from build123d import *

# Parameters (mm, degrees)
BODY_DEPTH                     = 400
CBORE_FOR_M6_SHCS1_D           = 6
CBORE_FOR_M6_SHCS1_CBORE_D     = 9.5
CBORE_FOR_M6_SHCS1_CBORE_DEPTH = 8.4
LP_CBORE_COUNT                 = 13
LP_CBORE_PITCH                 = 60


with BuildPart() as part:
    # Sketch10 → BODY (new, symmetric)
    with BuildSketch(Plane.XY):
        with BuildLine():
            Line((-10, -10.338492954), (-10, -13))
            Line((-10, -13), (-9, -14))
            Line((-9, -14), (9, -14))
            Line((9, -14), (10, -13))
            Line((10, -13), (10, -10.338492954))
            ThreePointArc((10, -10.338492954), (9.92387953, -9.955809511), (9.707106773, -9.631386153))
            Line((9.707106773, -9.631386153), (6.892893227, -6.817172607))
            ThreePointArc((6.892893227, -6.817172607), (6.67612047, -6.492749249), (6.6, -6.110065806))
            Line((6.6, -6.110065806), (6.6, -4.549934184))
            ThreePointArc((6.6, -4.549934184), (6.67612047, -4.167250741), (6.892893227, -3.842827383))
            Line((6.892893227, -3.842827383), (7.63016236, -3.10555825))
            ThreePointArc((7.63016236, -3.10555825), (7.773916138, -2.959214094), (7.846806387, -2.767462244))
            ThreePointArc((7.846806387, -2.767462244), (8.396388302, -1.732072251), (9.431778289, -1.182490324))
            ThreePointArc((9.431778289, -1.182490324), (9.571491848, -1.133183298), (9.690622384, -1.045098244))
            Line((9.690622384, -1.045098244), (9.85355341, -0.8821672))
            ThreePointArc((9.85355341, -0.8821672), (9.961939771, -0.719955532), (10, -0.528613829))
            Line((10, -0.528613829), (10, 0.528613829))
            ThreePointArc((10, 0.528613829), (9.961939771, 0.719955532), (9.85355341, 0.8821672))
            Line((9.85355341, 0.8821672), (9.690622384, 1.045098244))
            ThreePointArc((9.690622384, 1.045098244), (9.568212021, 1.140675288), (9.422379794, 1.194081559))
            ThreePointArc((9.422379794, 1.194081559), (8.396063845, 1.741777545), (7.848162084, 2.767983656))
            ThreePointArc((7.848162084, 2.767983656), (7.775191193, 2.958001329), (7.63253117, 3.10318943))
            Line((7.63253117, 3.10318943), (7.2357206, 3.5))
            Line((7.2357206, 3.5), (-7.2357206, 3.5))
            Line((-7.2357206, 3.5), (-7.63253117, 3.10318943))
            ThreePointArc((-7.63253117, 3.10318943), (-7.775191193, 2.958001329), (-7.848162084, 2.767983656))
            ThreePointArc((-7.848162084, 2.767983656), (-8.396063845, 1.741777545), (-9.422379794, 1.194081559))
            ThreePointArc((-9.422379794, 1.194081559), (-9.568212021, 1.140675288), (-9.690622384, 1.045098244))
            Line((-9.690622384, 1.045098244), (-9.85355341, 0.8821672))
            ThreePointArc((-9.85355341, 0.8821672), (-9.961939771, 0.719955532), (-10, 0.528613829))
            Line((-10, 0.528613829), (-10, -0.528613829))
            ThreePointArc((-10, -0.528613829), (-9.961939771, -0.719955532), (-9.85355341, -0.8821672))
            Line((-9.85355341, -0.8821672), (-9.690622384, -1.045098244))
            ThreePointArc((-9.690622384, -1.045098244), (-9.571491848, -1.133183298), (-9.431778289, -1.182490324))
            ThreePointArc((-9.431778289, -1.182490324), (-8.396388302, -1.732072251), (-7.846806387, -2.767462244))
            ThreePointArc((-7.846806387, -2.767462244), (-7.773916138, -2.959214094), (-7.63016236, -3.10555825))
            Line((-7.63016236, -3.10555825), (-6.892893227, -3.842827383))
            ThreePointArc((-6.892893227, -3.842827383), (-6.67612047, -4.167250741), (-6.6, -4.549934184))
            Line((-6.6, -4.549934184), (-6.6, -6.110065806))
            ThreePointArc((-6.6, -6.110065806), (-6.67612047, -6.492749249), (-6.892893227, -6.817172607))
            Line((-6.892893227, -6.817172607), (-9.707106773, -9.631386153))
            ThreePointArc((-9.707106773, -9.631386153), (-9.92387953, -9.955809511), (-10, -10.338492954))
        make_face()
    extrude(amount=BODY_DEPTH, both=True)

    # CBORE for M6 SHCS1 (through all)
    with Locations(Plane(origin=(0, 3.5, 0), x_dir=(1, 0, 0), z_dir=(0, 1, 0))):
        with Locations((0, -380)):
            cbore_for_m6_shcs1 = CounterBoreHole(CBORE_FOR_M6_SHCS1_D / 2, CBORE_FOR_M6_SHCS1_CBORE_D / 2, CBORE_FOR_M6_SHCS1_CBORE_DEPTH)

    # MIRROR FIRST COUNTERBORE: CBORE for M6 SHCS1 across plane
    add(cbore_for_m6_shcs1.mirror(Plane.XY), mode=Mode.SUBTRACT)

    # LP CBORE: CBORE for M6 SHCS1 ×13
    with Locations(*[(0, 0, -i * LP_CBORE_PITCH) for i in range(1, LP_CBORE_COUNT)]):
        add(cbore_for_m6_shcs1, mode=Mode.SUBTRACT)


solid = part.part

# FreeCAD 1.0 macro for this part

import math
import FreeCAD as App
import Part
import Sketcher
Q = App.Units.Quantity

doc = App.newDocument("Part")
body = doc.addObject("PartDesign::Body", "Body")

# Sketch on XY plane
sketch1 = body.newObject("Sketcher::SketchObject", "Sketch")
sketch1.AttachmentSupport = (doc.getObject("XY_Plane"), [""])
sketch1.MapMode = "FlatFace"
sketch1.addGeometry([
    Part.LineSegment(App.Vector(-10, -10.338493, 0), App.Vector(-10, -13, 0)),  # 0
    Part.LineSegment(App.Vector(-10, -13, 0), App.Vector(-9, -14, 0)),  # 1
    Part.LineSegment(App.Vector(-9, -14, 0), App.Vector(9, -14, 0)),  # 2
    Part.LineSegment(App.Vector(9, -14, 0), App.Vector(10, -13, 0)),  # 3
    Part.LineSegment(App.Vector(10, -13, 0), App.Vector(10, -10.338493, 0)),  # 4
    Part.ArcOfCircle(Part.Circle(App.Vector(9, -10.338493, 0), App.Vector(0, 0, 1), 1), math.radians(0), math.radians(45)),  # 5
    Part.LineSegment(App.Vector(9.707107, -9.631386, 0), App.Vector(6.892893, -6.817173, 0)),  # 6
    Part.ArcOfCircle(Part.Circle(App.Vector(7.6, -6.110066, 0), App.Vector(0, 0, 1), 1), math.radians(-180), math.radians(-135)),  # 7
    Part.LineSegment(App.Vector(6.6, -6.110066, 0), App.Vector(6.6, -4.549934, 0)),  # 8
    Part.ArcOfCircle(Part.Circle(App.Vector(7.6, -4.549934, 0), App.Vector(0, 0, 1), 1), math.radians(135), math.radians(180)),  # 9
    Part.LineSegment(App.Vector(6.892893, -3.842827, 0), App.Vector(7.630162, -3.105558, 0)),  # 10
    Part.ArcOfCircle(Part.Circle(App.Vector(7.352929, -2.689455, 0), App.Vector(0, 0, 1), 0.5), math.radians(-56.326002), math.radians(-8.975599)),  # 11
    Part.ArcOfCircle(Part.Circle(App.Vector(9.810602, -3.146286, 0), App.Vector(0, 0, 1), 2), math.radians(100.918459), math.radians(169.081542)),  # 12
    Part.ArcOfCircle(Part.Circle(App.Vector(9.337072, -0.691541, 0), App.Vector(0, 0, 1), 0.5), math.radians(-79.081541), math.radians(-45.000551)),  # 13
    Part.LineSegment(App.Vector(9.690622, -1.045098, 0), App.Vector(9.853553, -0.882167, 0)),  # 14
    Part.ArcOfCircle(Part.Circle(App.Vector(9.5, -0.528614, 0), App.Vector(0, 0, 1), 0.5), math.radians(-44.999997), math.radians(0)),  # 15
    Part.LineSegment(App.Vector(10, -0.528614, 0), App.Vector(10, 0.528614, 0)),  # 16
    Part.ArcOfCircle(Part.Circle(App.Vector(9.5, 0.528614, 0), App.Vector(0, 0, 1), 0.5), math.radians(0), math.radians(44.999997)),  # 17
    Part.LineSegment(App.Vector(9.853553, 0.882167, 0), App.Vector(9.690622, 1.045098, 0)),  # 18
    Part.ArcOfCircle(Part.Circle(App.Vector(9.325441, 0.703569, 0), App.Vector(0, 0, 1), 0.5), math.radians(43.083145), math.radians(78.820818)),  # 19
    Part.ArcOfCircle(Part.Circle(App.Vector(9.810136, 3.156133, 0), App.Vector(0, 0, 1), 2), math.radians(-168.80933), math.radians(-101.179181)),  # 20
    Part.ArcOfCircle(Part.Circle(App.Vector(7.354683, 2.687497, 0), App.Vector(0, 0, 1), 0.5), math.radians(9.263401), math.radians(56.24127)),  # 21
    Part.LineSegment(App.Vector(7.632531, 3.103189, 0), App.Vector(7.235721, 3.5, 0)),  # 22
    Part.LineSegment(App.Vector(7.235721, 3.5, 0), App.Vector(-7.235721, 3.5, 0)),  # 23
    Part.LineSegment(App.Vector(-7.235721, 3.5, 0), App.Vector(-7.632531, 3.103189, 0)),  # 24
    Part.ArcOfCircle(Part.Circle(App.Vector(-7.354683, 2.687497, 0), App.Vector(0, 0, 1), 0.5), math.radians(123.75873), math.radians(170.736599)),  # 25
    Part.ArcOfCircle(Part.Circle(App.Vector(-9.810136, 3.156133, 0), App.Vector(0, 0, 1), 2), math.radians(-78.820819), math.radians(-11.19067)),  # 26
    Part.ArcOfCircle(Part.Circle(App.Vector(-9.325441, 0.703569, 0), App.Vector(0, 0, 1), 0.5), math.radians(101.179182), math.radians(136.916855)),  # 27
    Part.LineSegment(App.Vector(-9.690622, 1.045098, 0), App.Vector(-9.853553, 0.882167, 0)),  # 28
    Part.ArcOfCircle(Part.Circle(App.Vector(-9.5, 0.528614, 0), App.Vector(0, 0, 1), 0.5), math.radians(135.000003), math.radians(180)),  # 29
    Part.LineSegment(App.Vector(-10, 0.528614, 0), App.Vector(-10, -0.528614, 0)),  # 30
    Part.ArcOfCircle(Part.Circle(App.Vector(-9.5, -0.528614, 0), App.Vector(0, 0, 1), 0.5), math.radians(-180), math.radians(-135.000003)),  # 31
    Part.LineSegment(App.Vector(-9.853553, -0.882167, 0), App.Vector(-9.690622, -1.045098, 0)),  # 32
    Part.ArcOfCircle(Part.Circle(App.Vector(-9.337072, -0.691541, 0), App.Vector(0, 0, 1), 0.5), math.radians(-134.999449), math.radians(-100.918459)),  # 33
    Part.ArcOfCircle(Part.Circle(App.Vector(-9.810602, -3.146286, 0), App.Vector(0, 0, 1), 2), math.radians(10.918458), math.radians(79.081541)),  # 34
    Part.ArcOfCircle(Part.Circle(App.Vector(-7.352929, -2.689455, 0), App.Vector(0, 0, 1), 0.5), math.radians(-171.024401), math.radians(-123.673998)),  # 35
    Part.LineSegment(App.Vector(-7.630162, -3.105558, 0), App.Vector(-6.892893, -3.842827, 0)),  # 36
    Part.ArcOfCircle(Part.Circle(App.Vector(-7.6, -4.549934, 0), App.Vector(0, 0, 1), 1), math.radians(0), math.radians(45)),  # 37
    Part.LineSegment(App.Vector(-6.6, -4.549934, 0), App.Vector(-6.6, -6.110066, 0)),  # 38
    Part.ArcOfCircle(Part.Circle(App.Vector(-7.6, -6.110066, 0), App.Vector(0, 0, 1), 1), math.radians(-45), math.radians(0)),  # 39
    Part.LineSegment(App.Vector(-6.892893, -6.817173, 0), App.Vector(-9.707107, -9.631386, 0)),  # 40
    Part.ArcOfCircle(Part.Circle(App.Vector(-9, -10.338493, 0), App.Vector(0, 0, 1), 1), math.radians(135), math.radians(180)),  # 41
], False)
sketch1.addConstraint([
    Sketcher.Constraint("Coincident", 0, 2, 1, 1),
    Sketcher.Constraint("Coincident", 1, 2, 2, 1),
    Sketcher.Constraint("Coincident", 2, 2, 3, 1),
    Sketcher.Constraint("Coincident", 3, 2, 4, 1),
    Sketcher.Constraint("Tangent", 4, 2, 5, 1),
    Sketcher.Constraint("Tangent", 5, 2, 6, 1),
    Sketcher.Constraint("Tangent", 6, 2, 7, 2),
    Sketcher.Constraint("Tangent", 7, 1, 8, 1),
    Sketcher.Constraint("Tangent", 8, 2, 9, 2),
    Sketcher.Constraint("Tangent", 9, 1, 10, 1),
    Sketcher.Constraint("Coincident", 10, 2, 11, 1),
    Sketcher.Constraint("Coincident", 11, 2, 12, 2),
    Sketcher.Constraint("Tangent", 12, 1, 13, 1),
    Sketcher.Constraint("Coincident", 13, 2, 14, 1),
    Sketcher.Constraint("Tangent", 14, 2, 15, 1),
    Sketcher.Constraint("Tangent", 15, 2, 16, 1),
    Sketcher.Constraint("Tangent", 16, 2, 17, 1),
    Sketcher.Constraint("Tangent", 17, 2, 18, 1),
    Sketcher.Constraint("Coincident", 18, 2, 19, 1),
    Sketcher.Constraint("Tangent", 19, 2, 20, 2),
    Sketcher.Constraint("Coincident", 20, 1, 21, 1),
    Sketcher.Constraint("Coincident", 21, 2, 22, 1),
    Sketcher.Constraint("Coincident", 22, 2, 23, 1),
    Sketcher.Constraint("Coincident", 23, 2, 24, 1),
    Sketcher.Constraint("Coincident", 24, 2, 25, 1),
    Sketcher.Constraint("Coincident", 25, 2, 26, 2),
    Sketcher.Constraint("Tangent", 26, 1, 27, 1),
    Sketcher.Constraint("Coincident", 27, 2, 28, 1),
    Sketcher.Constraint("Tangent", 28, 2, 29, 1),
    Sketcher.Constraint("Tangent", 29, 2, 30, 1),
    Sketcher.Constraint("Tangent", 30, 2, 31, 1),
    Sketcher.Constraint("Tangent", 31, 2, 32, 1),
    Sketcher.Constraint("Coincident", 32, 2, 33, 1),
    Sketcher.Constraint("Tangent", 33, 2, 34, 2),
    Sketcher.Constraint("Coincident", 34, 1, 35, 1),
    Sketcher.Constraint("Coincident", 35, 2, 36, 1),
    Sketcher.Constraint("Tangent", 36, 2, 37, 2),
    Sketcher.Constraint("Tangent", 37, 1, 38, 1),
    Sketcher.Constraint("Tangent", 38, 2, 39, 2),
    Sketcher.Constraint("Tangent", 39, 1, 40, 1),
    Sketcher.Constraint("Tangent", 40, 2, 41, 1),
    Sketcher.Constraint("Tangent", 41, 2, 0, 1),
    Sketcher.Constraint("Vertical", 0),
    Sketcher.Constraint("Horizontal", 2),
    Sketcher.Constraint("Vertical", 4),
    Sketcher.Constraint("Vertical", 8),
    Sketcher.Constraint("Vertical", 16),
    Sketcher.Constraint("Horizontal", 23),
    Sketcher.Constraint("Vertical", 30),
    Sketcher.Constraint("Vertical", 38),
    Sketcher.Constraint("Equal", 5, 7),
    Sketcher.Constraint("Equal", 7, 9),
    Sketcher.Constraint("Equal", 11, 13),
    Sketcher.Constraint("Equal", 13, 15),
    Sketcher.Constraint("Equal", 15, 17),
    Sketcher.Constraint("Equal", 17, 19),
    Sketcher.Constraint("Equal", 12, 20),
    Sketcher.Constraint("Equal", 19, 21),
    Sketcher.Constraint("Equal", 21, 25),
    Sketcher.Constraint("Equal", 20, 26),
    Sketcher.Constraint("Equal", 25, 27),
    Sketcher.Constraint("Equal", 27, 29),
    Sketcher.Constraint("Equal", 29, 31),
    Sketcher.Constraint("Equal", 31, 33),
    Sketcher.Constraint("Equal", 26, 34),
    Sketcher.Constraint("Equal", 33, 35),
    Sketcher.Constraint("Equal", 9, 37),
    Sketcher.Constraint("Equal", 37, 39),
    Sketcher.Constraint("Equal", 39, 41),
    Sketcher.Constraint("Symmetric", 15, 3, 29, 3, -1, 1),
    Sketcher.Constraint("Symmetric", 13, 2, 27, 2, -1, 1),
    Sketcher.Constraint("Symmetric", 17, 2, 31, 2, -1, 1),
    Sketcher.Constraint("Symmetric", 21, 3, 25, 3, -2),
    Sketcher.Constraint("Symmetric", 20, 3, 26, 3, -2),
    Sketcher.Constraint("Symmetric", 13, 3, 33, 3, -2),
    Sketcher.Constraint("Symmetric", 11, 3, 35, 3, -2),
    Sketcher.Constraint("Symmetric", 9, 3, 37, 3, -2),
    Sketcher.Constraint("Symmetric", 5, 3, 41, 3, -2),
    Sketcher.Constraint("Perpendicular", 1, 3),
    Sketcher.Constraint("Perpendicular", 3, 6),
    Sketcher.Constraint("Perpendicular", 6, 10),
    Sketcher.Constraint("Parallel", 10, 14),
    Sketcher.Constraint("Perpendicular", 14, 18),
    Sketcher.Constraint("Parallel", 18, 22),
    Sketcher.Constraint("Perpendicular", 22, 24),
    Sketcher.Constraint("Parallel", 32, 36),
    Sketcher.Constraint("Perpendicular", 36, 40),
    Sketcher.Constraint("Horizontal", 19, 3, 27, 3),
    Sketcher.Constraint("Horizontal", 17, 3, 29, 3),
    Sketcher.Constraint("Horizontal", 12, 3, 34, 3),
    Sketcher.Constraint("Horizontal", 0, 2, 3, 2),
    Sketcher.Constraint("Horizontal", 21, 2, 24, 2),
    Sketcher.Constraint("Horizontal", 13, 2, 32, 2),
    Sketcher.Constraint("Vertical", 41, 3, 1, 2),
    Sketcher.Constraint("Vertical", 4, 2, 15, 2),
    Sketcher.Constraint("Radius", 5, Q("1 mm")),
    Sketcher.Constraint("Radius", 12, Q("2 mm")),
    Sketcher.Constraint("Radius", 11, Q("0.5 mm")),
    Sketcher.Constraint("DistanceX", 2, 1, 2, 2, Q("18 mm")),
    Sketcher.Constraint("DistanceY", 0, 2, -1, 1, Q("13 mm")),
    Sketcher.Constraint("DistanceX", -1, 1, 7, 3, Q("7.6 mm")),
    Sketcher.Constraint("DistanceY", -1, 1, 22, 2, Q("3.5 mm")),
    Sketcher.Constraint("DistanceX", 23, 2, 23, 1, Q("14.471441 mm")),
    Sketcher.Constraint("DistanceY", 8, 1, 8, 2, Q("1.560132 mm")),
    Sketcher.Constraint("DistanceX", -1, 1, 12, 3, Q("9.810602 mm")),
    Sketcher.Constraint("DistanceY", 13, 2, -1, 1, Q("1.045098 mm")),
    Sketcher.Constraint("Distance", 14, Q("0.230419 mm")),
    Sketcher.Constraint("DistanceY", 0, 2, 0, 1, Q("2.661507 mm")),
    Sketcher.Constraint("DistanceX", -1, 1, 11, 3, Q("7.352929 mm")),
    Sketcher.Constraint("DistanceY", 13, 3, -1, 1, Q("0.691541 mm")),
    Sketcher.Constraint("DistanceX", -1, 1, 19, 3, Q("9.325441 mm")),
    Sketcher.Constraint("DistanceY", 10, 2, -1, 1, Q("3.105558 mm")),
    Sketcher.Constraint("DistanceX", -1, 1, 19, 2, Q("9.42238 mm")),
    Sketcher.Constraint("DistanceX", -1, 1, 21, 2, Q("7.632531 mm")),
    Sketcher.Constraint("DistanceX", -1, 1, 21, 3, Q("7.354683 mm")),
])
pad1 = body.newObject("PartDesign::Pad", "Pad")
pad1.Profile = sketch1
pad1.Length = 800
pad1.Midplane = True

# Sketch on XZ plane
sketch2 = body.newObject("Sketcher::SketchObject", "Sketch001")
sketch2.AttachmentSupport = (doc.getObject("XZ_Plane"), [""])
sketch2.MapMode = "FlatFace"
sketch2.AttachmentOffset = App.Placement(App.Vector(0, 0, -3.5), App.Rotation())
sketch2.addGeometry(Part.Circle(App.Vector(0, 380, 0), App.Vector(0, 0, 1), 3), False)
sketch2.addConstraint([
    Sketcher.Constraint("PointOnObject", 0, 3, -2),
    Sketcher.Constraint("Diameter", 0, Q("6 mm")),
    Sketcher.Constraint("DistanceY", -1, 1, 0, 3, Q("380 mm")),
])
doc.recompute()
hole = body.newObject("PartDesign::Hole", "Hole")
hole.Profile = sketch2
hole.ThreadType = "None"
hole.Diameter = 6
hole.DepthType = "ThroughAll"
hole.HoleCutType = "Counterbore"
hole.HoleCutDiameter = 9.5
hole.HoleCutDepth = 8.4
hole.Reversed = True
doc.recompute()

mirrored = body.newObject("PartDesign::Mirrored", "Mirrored")
mirrored.Originals = [hole]
mirrored.MirrorPlane = (doc.getObject("XY_Plane"), [""])
body.Tip = mirrored
doc.recompute()

linearpattern = body.newObject("PartDesign::LinearPattern", "LinearPattern")
linearpattern.Originals = [hole]
linearpattern.Direction = (doc.getObject("Z_Axis"), [""])
linearpattern.Mode = "offset"
linearpattern.Offset = 60
linearpattern.Occurrences = 13
linearpattern.Reversed = True
body.Tip = linearpattern

doc.recompute()
